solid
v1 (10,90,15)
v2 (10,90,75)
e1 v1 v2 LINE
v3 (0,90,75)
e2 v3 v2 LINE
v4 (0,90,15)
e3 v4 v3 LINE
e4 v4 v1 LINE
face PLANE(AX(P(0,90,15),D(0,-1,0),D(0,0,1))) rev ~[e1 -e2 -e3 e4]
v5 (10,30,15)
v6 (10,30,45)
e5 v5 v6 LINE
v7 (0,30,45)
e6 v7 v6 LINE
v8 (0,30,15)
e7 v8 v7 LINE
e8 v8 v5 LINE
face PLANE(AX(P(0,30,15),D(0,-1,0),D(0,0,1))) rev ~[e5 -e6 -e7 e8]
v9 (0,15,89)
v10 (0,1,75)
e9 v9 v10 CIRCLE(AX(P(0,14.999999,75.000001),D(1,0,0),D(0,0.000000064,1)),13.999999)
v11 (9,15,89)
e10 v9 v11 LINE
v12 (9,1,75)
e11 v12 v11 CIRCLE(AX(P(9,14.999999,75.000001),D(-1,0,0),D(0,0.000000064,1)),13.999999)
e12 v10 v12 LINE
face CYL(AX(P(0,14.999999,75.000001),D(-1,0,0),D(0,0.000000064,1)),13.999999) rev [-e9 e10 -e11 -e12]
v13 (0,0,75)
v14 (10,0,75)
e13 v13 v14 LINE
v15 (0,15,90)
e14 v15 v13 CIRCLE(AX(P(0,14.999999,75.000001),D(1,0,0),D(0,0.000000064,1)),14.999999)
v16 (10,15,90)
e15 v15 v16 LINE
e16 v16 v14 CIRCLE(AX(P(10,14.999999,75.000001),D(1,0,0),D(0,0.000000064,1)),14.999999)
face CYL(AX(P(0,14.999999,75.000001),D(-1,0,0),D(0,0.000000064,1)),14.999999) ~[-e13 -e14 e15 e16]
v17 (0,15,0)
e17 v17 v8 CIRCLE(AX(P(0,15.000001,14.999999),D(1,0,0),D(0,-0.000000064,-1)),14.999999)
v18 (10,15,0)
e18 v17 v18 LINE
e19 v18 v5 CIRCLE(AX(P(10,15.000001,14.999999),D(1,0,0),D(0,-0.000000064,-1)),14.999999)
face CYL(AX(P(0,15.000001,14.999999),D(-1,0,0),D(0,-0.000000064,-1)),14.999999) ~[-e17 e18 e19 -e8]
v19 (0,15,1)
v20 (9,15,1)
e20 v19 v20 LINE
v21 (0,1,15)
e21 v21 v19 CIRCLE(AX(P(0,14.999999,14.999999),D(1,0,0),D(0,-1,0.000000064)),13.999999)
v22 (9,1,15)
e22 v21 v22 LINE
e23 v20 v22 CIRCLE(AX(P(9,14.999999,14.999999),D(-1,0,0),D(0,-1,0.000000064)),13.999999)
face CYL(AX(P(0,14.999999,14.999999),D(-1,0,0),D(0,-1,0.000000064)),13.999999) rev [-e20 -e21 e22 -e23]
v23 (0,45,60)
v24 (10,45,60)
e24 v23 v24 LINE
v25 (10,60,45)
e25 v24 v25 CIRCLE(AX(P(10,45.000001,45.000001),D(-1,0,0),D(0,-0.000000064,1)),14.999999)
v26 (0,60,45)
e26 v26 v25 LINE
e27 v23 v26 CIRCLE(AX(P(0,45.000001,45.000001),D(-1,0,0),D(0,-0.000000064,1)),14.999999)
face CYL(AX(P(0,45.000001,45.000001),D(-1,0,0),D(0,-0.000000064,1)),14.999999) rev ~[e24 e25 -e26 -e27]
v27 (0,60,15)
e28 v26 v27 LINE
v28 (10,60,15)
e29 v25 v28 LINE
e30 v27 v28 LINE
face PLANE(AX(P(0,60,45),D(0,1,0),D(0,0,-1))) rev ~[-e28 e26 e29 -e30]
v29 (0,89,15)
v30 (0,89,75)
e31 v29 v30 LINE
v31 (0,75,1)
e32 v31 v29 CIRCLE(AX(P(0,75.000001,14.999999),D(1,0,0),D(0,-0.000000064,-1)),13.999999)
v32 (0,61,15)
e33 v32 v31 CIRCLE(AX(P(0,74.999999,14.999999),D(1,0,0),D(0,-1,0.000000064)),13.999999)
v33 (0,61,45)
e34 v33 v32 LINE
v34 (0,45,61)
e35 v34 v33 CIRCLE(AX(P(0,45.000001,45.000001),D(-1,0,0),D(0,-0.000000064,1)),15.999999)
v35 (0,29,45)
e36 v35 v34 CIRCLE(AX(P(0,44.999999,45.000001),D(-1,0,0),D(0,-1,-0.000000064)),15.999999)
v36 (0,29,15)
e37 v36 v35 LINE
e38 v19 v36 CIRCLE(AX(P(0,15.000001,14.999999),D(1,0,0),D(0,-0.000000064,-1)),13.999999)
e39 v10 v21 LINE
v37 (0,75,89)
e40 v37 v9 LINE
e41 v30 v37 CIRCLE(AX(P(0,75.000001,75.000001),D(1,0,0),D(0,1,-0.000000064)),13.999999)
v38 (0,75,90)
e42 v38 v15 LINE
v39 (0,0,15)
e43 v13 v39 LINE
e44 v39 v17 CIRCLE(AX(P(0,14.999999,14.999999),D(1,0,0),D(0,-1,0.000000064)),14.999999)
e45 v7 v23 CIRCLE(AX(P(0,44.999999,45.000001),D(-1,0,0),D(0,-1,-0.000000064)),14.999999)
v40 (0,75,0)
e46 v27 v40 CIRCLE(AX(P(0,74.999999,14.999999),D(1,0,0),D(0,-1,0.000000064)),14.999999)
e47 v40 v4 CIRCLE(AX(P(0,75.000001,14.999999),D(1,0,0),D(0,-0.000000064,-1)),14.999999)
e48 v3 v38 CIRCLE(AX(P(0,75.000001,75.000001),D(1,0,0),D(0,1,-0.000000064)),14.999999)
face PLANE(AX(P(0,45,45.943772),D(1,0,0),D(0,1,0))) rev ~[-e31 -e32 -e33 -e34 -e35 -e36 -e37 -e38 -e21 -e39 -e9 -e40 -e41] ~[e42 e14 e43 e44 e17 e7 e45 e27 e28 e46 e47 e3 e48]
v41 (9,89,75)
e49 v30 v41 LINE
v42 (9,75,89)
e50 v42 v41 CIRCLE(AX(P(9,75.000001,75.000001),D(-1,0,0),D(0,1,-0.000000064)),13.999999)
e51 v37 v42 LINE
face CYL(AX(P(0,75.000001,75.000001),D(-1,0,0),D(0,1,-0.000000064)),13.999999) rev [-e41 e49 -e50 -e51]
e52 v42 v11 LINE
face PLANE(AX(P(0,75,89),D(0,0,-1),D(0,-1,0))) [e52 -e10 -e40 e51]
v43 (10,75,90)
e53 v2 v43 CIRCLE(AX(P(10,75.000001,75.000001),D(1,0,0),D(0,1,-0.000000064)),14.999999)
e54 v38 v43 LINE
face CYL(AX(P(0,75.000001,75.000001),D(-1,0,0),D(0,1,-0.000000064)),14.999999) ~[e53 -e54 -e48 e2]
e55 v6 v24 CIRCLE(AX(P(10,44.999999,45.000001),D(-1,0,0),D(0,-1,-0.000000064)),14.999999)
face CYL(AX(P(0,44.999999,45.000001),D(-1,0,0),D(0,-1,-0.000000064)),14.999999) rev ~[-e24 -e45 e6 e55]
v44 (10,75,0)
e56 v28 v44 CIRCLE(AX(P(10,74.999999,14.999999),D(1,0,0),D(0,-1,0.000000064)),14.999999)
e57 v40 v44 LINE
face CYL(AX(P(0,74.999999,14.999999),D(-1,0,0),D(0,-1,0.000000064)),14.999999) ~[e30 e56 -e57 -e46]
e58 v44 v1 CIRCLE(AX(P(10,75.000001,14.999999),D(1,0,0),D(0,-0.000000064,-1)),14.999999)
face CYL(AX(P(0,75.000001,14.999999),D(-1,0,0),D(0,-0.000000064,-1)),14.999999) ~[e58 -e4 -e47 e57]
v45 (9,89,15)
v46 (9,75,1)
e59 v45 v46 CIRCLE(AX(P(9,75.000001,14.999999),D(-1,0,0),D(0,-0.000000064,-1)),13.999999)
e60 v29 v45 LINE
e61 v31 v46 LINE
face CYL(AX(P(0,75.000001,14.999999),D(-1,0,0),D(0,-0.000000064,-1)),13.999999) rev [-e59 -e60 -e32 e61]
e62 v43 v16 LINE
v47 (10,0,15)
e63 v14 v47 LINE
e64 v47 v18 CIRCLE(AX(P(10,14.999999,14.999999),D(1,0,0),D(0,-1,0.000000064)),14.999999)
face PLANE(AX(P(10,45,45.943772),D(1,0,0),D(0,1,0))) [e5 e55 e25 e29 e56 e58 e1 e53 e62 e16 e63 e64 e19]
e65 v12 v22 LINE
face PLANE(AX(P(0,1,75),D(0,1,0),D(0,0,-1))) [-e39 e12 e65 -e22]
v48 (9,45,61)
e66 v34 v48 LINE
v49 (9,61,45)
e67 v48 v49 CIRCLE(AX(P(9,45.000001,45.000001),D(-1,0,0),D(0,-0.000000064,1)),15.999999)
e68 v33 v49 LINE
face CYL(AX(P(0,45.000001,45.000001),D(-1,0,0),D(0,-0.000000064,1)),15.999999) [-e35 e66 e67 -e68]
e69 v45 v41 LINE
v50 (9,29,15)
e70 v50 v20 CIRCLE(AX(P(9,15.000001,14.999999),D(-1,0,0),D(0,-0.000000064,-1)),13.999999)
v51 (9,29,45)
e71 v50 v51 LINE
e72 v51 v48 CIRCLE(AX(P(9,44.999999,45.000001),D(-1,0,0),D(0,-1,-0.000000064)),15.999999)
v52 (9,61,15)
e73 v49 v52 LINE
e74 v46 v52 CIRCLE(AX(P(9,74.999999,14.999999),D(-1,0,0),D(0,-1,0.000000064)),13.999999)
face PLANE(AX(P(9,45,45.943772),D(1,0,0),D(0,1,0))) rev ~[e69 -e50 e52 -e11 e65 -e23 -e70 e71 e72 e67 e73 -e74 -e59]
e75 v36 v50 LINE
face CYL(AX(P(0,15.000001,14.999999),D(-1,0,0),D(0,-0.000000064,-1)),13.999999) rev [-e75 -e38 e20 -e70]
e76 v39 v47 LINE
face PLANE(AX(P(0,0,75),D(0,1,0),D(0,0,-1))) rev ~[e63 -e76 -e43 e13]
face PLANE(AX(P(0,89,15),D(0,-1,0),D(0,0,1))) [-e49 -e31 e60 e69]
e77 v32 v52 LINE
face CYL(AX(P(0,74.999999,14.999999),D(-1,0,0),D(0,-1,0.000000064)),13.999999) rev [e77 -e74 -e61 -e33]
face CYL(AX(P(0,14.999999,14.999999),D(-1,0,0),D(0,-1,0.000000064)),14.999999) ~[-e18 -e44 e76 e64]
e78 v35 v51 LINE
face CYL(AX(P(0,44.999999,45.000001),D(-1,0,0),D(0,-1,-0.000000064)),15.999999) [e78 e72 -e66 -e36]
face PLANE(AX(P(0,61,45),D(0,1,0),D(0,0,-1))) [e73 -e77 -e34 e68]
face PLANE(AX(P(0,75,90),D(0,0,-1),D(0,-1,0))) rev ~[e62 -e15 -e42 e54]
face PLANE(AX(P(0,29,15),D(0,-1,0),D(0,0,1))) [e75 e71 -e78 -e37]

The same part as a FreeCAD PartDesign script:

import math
import FreeCAD as App
import Part
import Sketcher
Q = App.Units.Quantity


def faces_at(feature, points):
    """Names of the faces that lie closest to the given points."""
    faces = feature.Shape.Faces
    near = lambda p: min(range(len(faces)), key=lambda i: faces[i].distToShape(Part.Vertex(*p))[0])
    return sorted({f"Face{near(p) + 1}" for p in points})

doc = App.newDocument("Part")
body = doc.addObject("PartDesign::Body", "Body")

sketch1 = body.newObject("Sketcher::SketchObject", "Sketch")
sketch1.AttachmentSupport = (doc.getObject("YZ_Plane"), [""])
sketch1.MapMode = "FlatFace"
sketch1.addGeometry([
    Part.LineSegment(App.Vector(75, 90, 0), App.Vector(15, 90, 0)),
    Part.ArcOfCircle(Part.Circle(App.Vector(14.999999, 75.000001, 0), App.Vector(0, 0, 1), 14.999999), math.radians(89.999996), math.radians(180.000004)),
    Part.LineSegment(App.Vector(0, 75, 0), App.Vector(0, 15, 0)),
    Part.ArcOfCircle(Part.Circle(App.Vector(14.999999, 14.999999, 0), App.Vector(0, 0, 1), 14.999999), math.radians(179.999996), math.radians(270.000004)),
    Part.ArcOfCircle(Part.Circle(App.Vector(15.000001, 14.999999, 0), App.Vector(0, 0, 1), 14.999999), math.radians(-90.000004), math.radians(0.000004)),
    Part.LineSegment(App.Vector(30, 15, 0), App.Vector(30, 45, 0)),
    Part.ArcOfCircle(Part.Circle(App.Vector(44.999999, 45.000001, 0), App.Vector(0, 0, 1), 14.999999), math.radians(89.999996), math.radians(180.000004)),
    Part.ArcOfCircle(Part.Circle(App.Vector(45.000001, 45.000001, 0), App.Vector(0, 0, 1), 14.999999), math.radians(-0.000004), math.radians(90.000004)),
    Part.LineSegment(App.Vector(60, 45, 0), App.Vector(60, 15, 0)),
    Part.ArcOfCircle(Part.Circle(App.Vector(74.999999, 14.999999, 0), App.Vector(0, 0, 1), 14.999999), math.radians(179.999996), math.radians(270.000004)),
    Part.ArcOfCircle(Part.Circle(App.Vector(75.000001, 14.999999, 0), App.Vector(0, 0, 1), 14.999999), math.radians(-90.000004), math.radians(0.000004)),
    Part.LineSegment(App.Vector(90, 15, 0), App.Vector(90, 75, 0)),
    Part.ArcOfCircle(Part.Circle(App.Vector(75.000001, 75.000001, 0), App.Vector(0, 0, 1), 14.999999), math.radians(-0.000004), math.radians(90.000004)),
], False)
sketch1.addConstraint([
    Sketcher.Constraint("Tangent", 0, 2, 1, 1),
    Sketcher.Constraint("Tangent", 1, 2, 2, 1),
    Sketcher.Constraint("Tangent", 2, 2, 3, 1),
    Sketcher.Constraint("Tangent", 3, 2, 4, 1),
    Sketcher.Constraint("Tangent", 4, 2, 5, 1),
    Sketcher.Constraint("Tangent", 5, 2, 6, 2),
    Sketcher.Constraint("Tangent", 6, 1, 7, 2),
    Sketcher.Constraint("Tangent", 7, 1, 8, 1),
    Sketcher.Constraint("Tangent", 8, 2, 9, 1),
    Sketcher.Constraint("Tangent", 9, 2, 10, 1),
    Sketcher.Constraint("Tangent", 10, 2, 11, 1),
    Sketcher.Constraint("Tangent", 11, 2, 12, 1),
    Sketcher.Constraint("Tangent", 12, 2, 0, 1),
    Sketcher.Constraint("Horizontal", 0),
    Sketcher.Constraint("Vertical", 2),
    Sketcher.Constraint("Vertical", 5),
    Sketcher.Constraint("Vertical", 8),
    Sketcher.Constraint("Vertical", 11),
    Sketcher.Constraint("Equal", 1, 3),
    Sketcher.Constraint("Equal", 3, 4),
    Sketcher.Constraint("Equal", 4, 6),
    Sketcher.Constraint("Equal", 6, 7),
    Sketcher.Constraint("Equal", 7, 9),
    Sketcher.Constraint("Equal", 9, 10),
    Sketcher.Constraint("Equal", 10, 12),
    Sketcher.Constraint("PointOnObject", 1, 2, -2),
    Sketcher.Constraint("PointOnObject", 3, 2, -1),
    Sketcher.Constraint("PointOnObject", 9, 2, -1),
    Sketcher.Constraint("Vertical", 0, 2, 3, 2),
    Sketcher.Constraint("Vertical", 7, 3, 6, 1),
    Sketcher.Constraint("Vertical", 12, 3, 9, 2),
    Sketcher.Constraint("Equal", 0, 2),
    Sketcher.Constraint("Radius", 1, Q("14.999999 mm")),
    Sketcher.Constraint("DistanceY", 5, 1, 5, 2, Q("30 mm")),
])
pad1 = body.newObject("PartDesign::Pad", "Pad")
pad1.Profile = sketch1
pad1.Length = 10
doc.recompute()

thickness = body.newObject("PartDesign::Thickness", "Thickness")
thickness.Base = (pad1, faces_at(pad1, [(0, 27, 27)]))
thickness.Value = 1
thickness.Reversed = True
thickness.Join = "Arc"

doc.recompute()
